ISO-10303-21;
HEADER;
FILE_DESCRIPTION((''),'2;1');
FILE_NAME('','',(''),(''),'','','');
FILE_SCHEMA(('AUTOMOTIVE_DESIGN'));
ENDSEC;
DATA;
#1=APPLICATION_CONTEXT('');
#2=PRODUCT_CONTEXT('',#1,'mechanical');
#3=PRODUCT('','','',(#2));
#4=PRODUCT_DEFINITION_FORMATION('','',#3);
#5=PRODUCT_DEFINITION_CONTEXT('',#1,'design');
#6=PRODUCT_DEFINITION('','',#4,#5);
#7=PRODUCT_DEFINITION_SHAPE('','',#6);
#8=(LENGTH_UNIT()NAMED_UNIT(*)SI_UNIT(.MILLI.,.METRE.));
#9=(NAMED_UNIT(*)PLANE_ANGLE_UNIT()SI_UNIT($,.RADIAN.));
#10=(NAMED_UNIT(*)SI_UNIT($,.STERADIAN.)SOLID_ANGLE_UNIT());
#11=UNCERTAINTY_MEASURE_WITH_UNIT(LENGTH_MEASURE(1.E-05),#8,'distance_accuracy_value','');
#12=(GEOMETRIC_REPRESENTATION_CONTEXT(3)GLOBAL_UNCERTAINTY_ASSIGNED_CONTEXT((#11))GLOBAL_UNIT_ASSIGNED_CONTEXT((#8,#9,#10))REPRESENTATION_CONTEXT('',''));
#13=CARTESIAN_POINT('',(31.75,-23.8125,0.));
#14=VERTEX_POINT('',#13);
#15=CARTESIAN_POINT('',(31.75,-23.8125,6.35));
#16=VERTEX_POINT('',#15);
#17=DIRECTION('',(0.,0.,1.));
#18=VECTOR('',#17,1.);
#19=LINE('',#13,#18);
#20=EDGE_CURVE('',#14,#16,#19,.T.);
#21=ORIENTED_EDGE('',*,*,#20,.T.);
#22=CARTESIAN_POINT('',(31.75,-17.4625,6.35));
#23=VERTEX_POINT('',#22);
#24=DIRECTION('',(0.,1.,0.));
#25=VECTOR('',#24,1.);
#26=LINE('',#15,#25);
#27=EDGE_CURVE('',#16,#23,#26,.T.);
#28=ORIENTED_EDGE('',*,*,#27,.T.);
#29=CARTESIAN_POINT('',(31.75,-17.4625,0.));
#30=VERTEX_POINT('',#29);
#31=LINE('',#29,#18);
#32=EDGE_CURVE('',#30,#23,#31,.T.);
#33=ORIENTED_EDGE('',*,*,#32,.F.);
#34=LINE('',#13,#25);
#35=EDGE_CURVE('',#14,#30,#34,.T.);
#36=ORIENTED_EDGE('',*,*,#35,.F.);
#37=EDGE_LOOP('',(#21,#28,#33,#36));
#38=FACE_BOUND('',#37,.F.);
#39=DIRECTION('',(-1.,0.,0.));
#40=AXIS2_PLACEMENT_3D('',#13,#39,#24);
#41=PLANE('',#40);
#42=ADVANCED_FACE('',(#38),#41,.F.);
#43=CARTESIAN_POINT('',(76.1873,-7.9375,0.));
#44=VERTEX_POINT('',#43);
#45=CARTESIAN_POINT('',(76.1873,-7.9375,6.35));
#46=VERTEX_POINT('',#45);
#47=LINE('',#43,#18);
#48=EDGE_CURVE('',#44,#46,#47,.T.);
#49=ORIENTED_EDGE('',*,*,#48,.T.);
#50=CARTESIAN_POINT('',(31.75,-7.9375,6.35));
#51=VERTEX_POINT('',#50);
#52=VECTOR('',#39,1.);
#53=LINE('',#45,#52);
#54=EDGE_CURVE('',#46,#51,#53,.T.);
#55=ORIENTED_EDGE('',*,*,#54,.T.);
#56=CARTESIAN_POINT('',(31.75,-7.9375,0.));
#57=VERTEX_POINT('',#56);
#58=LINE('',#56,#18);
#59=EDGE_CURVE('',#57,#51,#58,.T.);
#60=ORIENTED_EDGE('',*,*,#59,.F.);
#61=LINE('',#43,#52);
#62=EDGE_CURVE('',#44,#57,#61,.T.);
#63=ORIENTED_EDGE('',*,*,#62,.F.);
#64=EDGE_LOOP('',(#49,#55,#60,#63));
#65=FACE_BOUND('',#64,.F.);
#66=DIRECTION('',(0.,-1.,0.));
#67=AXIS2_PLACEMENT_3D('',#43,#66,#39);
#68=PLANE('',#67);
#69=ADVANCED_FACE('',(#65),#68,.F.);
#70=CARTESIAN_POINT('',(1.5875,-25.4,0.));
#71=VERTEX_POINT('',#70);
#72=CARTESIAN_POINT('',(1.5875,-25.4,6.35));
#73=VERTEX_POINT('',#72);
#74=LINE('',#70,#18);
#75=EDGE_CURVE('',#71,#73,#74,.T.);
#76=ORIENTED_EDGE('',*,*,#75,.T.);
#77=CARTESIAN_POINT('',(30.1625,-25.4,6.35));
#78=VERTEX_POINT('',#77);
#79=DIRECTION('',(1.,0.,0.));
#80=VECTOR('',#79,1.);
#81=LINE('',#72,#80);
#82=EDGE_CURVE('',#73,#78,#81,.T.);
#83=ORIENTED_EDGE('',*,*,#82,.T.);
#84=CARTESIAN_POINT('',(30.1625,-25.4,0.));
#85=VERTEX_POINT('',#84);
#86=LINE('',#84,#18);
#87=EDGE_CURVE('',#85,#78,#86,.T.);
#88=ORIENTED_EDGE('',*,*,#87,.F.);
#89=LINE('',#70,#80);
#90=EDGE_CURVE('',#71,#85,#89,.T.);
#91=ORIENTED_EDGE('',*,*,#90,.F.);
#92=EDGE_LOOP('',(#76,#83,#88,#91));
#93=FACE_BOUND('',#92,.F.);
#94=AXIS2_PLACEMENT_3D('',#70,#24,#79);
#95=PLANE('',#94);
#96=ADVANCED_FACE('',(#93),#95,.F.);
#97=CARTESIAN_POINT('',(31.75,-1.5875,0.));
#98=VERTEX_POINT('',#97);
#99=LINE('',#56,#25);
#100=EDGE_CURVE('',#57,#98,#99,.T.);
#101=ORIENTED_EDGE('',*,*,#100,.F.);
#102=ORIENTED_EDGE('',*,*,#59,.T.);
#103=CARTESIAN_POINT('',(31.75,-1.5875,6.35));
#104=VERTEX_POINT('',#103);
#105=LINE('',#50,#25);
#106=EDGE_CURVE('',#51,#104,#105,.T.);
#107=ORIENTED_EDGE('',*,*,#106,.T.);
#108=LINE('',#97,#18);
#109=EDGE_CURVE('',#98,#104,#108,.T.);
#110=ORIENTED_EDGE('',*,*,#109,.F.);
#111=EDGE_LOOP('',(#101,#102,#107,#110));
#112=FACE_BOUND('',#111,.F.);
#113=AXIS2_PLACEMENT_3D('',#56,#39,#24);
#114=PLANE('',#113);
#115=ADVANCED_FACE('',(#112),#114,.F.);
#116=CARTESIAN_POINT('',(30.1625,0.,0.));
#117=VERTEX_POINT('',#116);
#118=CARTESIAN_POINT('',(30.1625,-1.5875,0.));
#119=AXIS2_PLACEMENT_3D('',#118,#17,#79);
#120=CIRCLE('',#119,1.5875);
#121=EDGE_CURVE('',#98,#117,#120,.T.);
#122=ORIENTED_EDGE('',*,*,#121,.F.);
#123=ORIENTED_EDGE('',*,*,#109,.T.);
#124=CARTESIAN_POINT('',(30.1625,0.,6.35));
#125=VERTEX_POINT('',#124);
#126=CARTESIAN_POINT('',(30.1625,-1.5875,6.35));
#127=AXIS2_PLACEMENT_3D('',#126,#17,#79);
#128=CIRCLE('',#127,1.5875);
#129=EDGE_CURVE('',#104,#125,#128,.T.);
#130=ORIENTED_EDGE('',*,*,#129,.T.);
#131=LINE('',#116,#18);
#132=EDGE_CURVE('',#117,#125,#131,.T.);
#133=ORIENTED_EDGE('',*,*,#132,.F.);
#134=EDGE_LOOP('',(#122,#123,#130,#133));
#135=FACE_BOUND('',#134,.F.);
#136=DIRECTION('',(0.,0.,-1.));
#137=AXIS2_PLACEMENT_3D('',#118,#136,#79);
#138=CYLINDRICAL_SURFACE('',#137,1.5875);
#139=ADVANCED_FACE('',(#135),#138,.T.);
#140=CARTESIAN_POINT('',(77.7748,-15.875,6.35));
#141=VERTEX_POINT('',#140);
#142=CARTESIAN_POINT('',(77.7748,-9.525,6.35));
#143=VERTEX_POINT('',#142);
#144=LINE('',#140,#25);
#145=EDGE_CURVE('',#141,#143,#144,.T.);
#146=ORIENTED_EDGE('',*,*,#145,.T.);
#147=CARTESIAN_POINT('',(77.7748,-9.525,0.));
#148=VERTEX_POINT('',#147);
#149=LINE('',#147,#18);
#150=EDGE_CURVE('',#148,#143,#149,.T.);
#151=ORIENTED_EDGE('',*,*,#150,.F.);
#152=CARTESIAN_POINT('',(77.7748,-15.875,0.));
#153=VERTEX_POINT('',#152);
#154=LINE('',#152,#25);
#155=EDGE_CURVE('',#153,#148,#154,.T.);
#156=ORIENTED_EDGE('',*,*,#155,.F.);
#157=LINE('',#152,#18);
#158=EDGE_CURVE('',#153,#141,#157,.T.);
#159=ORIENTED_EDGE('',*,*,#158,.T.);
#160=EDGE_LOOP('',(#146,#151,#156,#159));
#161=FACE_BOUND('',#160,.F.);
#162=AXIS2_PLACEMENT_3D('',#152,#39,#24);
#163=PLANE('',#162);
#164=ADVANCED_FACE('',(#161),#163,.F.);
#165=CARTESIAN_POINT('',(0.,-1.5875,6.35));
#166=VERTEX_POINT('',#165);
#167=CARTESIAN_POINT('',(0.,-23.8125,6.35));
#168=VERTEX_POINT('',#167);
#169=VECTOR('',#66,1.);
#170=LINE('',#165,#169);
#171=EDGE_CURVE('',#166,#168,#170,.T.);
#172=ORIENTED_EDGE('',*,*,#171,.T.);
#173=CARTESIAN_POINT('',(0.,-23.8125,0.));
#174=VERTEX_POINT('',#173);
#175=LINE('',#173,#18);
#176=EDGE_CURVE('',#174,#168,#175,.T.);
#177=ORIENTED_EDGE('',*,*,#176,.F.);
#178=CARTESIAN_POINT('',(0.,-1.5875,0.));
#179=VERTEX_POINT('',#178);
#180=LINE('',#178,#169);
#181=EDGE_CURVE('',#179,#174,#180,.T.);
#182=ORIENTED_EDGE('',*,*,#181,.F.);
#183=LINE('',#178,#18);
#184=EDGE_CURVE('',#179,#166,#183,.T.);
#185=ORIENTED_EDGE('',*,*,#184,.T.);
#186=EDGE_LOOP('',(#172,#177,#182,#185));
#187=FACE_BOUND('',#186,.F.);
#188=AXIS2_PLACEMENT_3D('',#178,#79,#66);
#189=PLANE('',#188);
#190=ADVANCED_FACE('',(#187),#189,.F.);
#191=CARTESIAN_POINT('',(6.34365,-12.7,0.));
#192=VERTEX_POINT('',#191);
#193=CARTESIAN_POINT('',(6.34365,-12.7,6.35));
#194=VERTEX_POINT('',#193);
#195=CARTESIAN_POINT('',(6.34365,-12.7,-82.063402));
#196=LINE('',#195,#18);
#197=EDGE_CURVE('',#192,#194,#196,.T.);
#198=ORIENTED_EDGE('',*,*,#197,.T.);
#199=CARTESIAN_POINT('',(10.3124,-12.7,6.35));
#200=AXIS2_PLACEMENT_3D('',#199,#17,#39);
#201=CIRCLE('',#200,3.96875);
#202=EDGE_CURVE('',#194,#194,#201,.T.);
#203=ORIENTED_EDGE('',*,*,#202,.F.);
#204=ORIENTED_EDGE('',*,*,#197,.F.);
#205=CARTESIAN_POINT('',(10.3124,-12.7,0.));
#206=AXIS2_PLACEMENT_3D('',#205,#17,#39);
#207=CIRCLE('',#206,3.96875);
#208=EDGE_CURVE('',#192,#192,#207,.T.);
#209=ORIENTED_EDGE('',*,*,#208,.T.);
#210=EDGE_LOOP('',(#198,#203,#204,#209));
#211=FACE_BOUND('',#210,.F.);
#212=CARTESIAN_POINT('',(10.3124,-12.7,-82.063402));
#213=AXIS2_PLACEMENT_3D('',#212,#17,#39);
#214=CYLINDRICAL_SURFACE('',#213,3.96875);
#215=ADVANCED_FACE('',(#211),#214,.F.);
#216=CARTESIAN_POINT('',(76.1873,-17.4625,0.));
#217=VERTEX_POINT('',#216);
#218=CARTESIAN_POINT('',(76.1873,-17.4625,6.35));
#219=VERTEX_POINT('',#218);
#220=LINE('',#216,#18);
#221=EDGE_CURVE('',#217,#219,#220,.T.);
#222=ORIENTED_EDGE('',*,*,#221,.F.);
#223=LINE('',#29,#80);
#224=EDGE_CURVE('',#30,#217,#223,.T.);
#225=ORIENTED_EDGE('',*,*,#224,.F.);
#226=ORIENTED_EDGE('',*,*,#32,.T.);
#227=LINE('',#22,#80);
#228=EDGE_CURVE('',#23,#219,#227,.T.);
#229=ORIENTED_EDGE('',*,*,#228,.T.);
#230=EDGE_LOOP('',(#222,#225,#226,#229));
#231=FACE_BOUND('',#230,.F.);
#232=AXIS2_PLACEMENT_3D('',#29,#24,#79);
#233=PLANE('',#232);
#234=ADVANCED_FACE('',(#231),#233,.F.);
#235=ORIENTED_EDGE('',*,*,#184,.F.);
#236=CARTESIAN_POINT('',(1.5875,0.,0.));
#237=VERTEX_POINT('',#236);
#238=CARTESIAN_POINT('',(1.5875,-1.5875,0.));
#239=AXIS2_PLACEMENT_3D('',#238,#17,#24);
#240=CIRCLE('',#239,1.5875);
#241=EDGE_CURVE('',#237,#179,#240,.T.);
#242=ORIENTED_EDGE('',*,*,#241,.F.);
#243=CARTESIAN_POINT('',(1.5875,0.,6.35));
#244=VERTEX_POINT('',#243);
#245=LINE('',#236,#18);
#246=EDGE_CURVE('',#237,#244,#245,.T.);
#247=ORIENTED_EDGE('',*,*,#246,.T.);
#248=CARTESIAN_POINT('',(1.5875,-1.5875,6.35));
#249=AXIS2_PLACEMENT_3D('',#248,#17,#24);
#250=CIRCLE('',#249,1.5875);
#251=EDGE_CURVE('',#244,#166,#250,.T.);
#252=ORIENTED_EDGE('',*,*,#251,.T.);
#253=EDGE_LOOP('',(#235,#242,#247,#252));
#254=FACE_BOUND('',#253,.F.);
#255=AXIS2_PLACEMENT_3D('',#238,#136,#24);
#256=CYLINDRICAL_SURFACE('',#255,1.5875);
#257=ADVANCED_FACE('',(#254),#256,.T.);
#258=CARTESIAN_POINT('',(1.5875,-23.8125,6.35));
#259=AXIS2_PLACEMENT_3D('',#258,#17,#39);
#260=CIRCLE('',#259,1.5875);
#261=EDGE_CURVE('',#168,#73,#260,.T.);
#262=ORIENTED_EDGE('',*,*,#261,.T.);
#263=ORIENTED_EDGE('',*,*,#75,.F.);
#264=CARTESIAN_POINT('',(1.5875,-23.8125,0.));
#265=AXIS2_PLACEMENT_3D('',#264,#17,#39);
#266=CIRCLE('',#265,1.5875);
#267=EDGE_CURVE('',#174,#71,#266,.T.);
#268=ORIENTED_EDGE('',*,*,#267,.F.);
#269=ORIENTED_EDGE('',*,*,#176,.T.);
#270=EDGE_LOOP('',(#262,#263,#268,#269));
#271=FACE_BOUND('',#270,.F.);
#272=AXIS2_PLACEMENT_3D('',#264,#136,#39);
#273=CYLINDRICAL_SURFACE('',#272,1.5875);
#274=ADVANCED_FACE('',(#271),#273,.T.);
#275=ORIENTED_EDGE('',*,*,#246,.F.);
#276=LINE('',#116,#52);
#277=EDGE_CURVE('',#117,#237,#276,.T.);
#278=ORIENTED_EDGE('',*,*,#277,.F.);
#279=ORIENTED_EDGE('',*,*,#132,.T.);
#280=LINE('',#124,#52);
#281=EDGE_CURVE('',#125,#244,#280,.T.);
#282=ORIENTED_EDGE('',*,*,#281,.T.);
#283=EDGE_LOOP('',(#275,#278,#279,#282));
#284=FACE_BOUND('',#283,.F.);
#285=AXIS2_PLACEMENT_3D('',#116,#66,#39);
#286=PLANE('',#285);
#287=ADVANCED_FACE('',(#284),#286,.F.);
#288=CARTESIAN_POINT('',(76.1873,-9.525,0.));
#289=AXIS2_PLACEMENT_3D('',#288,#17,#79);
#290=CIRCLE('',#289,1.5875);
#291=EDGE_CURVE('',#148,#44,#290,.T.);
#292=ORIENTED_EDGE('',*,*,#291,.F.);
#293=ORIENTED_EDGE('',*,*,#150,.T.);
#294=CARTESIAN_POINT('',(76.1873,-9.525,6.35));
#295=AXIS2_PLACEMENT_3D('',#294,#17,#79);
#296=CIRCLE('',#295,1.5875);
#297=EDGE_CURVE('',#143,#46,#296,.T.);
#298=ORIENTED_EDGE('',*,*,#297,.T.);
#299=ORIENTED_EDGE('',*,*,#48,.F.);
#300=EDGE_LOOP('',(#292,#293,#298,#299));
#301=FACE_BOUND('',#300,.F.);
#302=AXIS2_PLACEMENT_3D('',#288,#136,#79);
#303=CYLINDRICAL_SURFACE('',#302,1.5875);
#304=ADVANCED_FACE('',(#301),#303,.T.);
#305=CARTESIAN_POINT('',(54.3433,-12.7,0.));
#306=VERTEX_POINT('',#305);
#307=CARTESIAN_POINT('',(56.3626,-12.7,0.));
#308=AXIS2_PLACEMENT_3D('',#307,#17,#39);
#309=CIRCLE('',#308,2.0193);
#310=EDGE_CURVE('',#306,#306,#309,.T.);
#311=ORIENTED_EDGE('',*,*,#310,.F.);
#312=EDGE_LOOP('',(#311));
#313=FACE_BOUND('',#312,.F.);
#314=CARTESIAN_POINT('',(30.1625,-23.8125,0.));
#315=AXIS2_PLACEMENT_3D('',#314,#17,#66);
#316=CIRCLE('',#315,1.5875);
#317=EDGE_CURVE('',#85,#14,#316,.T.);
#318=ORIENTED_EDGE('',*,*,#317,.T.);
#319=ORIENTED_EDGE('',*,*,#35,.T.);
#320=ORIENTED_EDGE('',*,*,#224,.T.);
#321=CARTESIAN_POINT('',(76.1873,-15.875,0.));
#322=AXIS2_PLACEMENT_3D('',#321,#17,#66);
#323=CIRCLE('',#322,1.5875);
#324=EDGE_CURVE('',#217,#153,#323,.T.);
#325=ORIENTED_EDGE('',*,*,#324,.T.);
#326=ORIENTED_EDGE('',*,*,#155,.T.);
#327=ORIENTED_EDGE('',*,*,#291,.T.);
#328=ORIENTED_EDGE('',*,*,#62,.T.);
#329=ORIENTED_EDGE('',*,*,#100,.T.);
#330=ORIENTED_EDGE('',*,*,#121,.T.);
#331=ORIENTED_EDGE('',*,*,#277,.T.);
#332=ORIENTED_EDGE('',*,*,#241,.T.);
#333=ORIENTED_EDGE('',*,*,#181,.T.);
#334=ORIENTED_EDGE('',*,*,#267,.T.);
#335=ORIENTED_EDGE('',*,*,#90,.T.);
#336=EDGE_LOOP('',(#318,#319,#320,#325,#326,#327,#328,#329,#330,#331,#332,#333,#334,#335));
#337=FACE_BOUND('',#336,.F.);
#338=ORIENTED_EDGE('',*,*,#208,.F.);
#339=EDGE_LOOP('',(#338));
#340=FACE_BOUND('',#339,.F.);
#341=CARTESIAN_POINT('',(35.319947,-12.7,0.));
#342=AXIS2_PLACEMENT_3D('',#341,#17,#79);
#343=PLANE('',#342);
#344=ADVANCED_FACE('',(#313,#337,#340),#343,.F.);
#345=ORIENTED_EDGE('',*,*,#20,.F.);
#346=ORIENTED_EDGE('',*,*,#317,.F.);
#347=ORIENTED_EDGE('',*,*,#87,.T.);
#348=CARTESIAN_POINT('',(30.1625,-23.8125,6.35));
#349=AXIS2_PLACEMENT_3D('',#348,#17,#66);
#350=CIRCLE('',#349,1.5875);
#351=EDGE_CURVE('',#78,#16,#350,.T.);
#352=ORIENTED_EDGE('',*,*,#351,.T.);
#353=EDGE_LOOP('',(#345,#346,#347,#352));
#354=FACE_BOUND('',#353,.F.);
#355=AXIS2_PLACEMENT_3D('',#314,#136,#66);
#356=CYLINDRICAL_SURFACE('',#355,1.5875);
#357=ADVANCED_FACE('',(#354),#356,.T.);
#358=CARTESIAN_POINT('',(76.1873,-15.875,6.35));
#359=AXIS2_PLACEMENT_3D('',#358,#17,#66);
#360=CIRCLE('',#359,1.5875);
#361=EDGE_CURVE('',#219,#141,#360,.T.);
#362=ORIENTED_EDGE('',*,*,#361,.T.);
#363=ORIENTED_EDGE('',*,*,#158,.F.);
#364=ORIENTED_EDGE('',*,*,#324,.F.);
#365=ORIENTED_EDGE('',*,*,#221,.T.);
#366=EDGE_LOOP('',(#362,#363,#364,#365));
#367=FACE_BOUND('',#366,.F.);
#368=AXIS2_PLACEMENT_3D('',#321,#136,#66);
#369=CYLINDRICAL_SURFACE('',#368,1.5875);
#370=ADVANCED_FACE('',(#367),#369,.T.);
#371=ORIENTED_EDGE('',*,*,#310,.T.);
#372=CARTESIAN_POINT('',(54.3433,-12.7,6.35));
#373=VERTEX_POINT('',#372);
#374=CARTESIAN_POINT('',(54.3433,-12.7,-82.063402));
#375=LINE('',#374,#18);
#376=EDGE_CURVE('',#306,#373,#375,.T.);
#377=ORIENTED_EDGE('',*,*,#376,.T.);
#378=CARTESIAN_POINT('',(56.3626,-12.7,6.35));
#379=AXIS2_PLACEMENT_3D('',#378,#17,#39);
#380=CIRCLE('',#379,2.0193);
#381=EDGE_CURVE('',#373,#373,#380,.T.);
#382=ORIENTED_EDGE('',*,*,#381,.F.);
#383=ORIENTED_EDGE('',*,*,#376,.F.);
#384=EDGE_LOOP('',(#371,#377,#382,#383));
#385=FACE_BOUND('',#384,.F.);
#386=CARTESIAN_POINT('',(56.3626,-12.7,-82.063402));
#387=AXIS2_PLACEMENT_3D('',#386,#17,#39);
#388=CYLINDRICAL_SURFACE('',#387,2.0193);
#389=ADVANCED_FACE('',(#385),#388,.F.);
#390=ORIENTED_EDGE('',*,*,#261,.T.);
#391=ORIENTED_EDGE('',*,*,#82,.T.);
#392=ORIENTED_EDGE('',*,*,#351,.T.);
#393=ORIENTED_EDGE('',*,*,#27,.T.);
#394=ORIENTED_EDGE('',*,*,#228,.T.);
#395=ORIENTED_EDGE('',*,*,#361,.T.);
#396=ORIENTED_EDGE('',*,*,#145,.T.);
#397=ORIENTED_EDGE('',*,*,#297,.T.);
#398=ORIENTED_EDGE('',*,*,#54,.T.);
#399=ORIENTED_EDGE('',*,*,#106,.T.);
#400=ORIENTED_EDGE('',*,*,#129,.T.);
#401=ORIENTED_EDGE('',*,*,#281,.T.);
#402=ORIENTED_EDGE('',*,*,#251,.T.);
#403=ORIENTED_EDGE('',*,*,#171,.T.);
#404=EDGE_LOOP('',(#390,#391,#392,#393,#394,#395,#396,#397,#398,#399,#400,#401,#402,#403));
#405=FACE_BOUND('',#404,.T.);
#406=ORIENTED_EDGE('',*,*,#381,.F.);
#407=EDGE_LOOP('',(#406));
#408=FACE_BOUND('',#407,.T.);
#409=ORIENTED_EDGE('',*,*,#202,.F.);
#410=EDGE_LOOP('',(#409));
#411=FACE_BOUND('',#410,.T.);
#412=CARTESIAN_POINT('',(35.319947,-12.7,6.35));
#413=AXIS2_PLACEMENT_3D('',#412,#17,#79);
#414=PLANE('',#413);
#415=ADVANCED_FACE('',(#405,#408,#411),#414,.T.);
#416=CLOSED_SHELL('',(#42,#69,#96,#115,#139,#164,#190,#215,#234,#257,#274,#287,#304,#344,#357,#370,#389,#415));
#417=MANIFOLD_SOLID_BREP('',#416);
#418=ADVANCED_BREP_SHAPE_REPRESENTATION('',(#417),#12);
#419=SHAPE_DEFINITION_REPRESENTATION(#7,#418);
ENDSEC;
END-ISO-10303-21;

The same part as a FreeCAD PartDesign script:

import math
import FreeCAD as App
import Part
import Sketcher
Q = App.Units.Quantity

doc = App.newDocument("Part")
body = doc.addObject("PartDesign::Body", "Body")

# Sketch on XY plane
sketch1 = doc.addObject("Sketcher::SketchObject", "Sketch")
body.addObject(sketch1)
sketch1.AttachmentSupport = (doc.XY_Plane, [""])
sketch1.MapMode = "FlatFace"
sketch1.addGeometry(Part.LineSegment(App.Vector(30.2, 0, 0), App.Vector(1.6, 0, 0)), False)
sketch1.addGeometry(Part.ArcOfCircle(Part.Circle(App.Vector(1.6, -1.6, 0), App.Vector(0, 0, 1), 1.6), math.radians(90), math.radians(180)), False)
sketch1.addGeometry(Part.LineSegment(App.Vector(0, -1.6, 0), App.Vector(0, -23.8, 0)), False)
sketch1.addGeometry(Part.ArcOfCircle(Part.Circle(App.Vector(1.6, -23.8, 0), App.Vector(0, 0, 1), 1.6), math.radians(180), math.radians(270)), False)
sketch1.addGeometry(Part.LineSegment(App.Vector(1.6, -25.4, 0), App.Vector(30.2, -25.4, 0)), False)
sketch1.addGeometry(Part.ArcOfCircle(Part.Circle(App.Vector(30.2, -23.8, 0), App.Vector(0, 0, 1), 1.6), math.radians(-90), math.radians(0)), False)
sketch1.addGeometry(Part.LineSegment(App.Vector(31.8, -23.8, 0), App.Vector(31.8, -17.5, 0)), False)
sketch1.addGeometry(Part.LineSegment(App.Vector(31.8, -17.5, 0), App.Vector(76.2, -17.5, 0)), False)
sketch1.addGeometry(Part.ArcOfCircle(Part.Circle(App.Vector(76.2, -15.9, 0), App.Vector(0, 0, 1), 1.6), math.radians(-90), math.radians(0)), False)
sketch1.addGeometry(Part.LineSegment(App.Vector(77.8, -15.9, 0), App.Vector(77.8, -9.5, 0)), False)
sketch1.addGeometry(Part.ArcOfCircle(Part.Circle(App.Vector(76.2, -9.5, 0), App.Vector(0, 0, 1), 1.6), math.radians(0), math.radians(90)), False)
sketch1.addGeometry(Part.LineSegment(App.Vector(76.2, -7.9, 0), App.Vector(31.8, -7.9, 0)), False)
sketch1.addGeometry(Part.LineSegment(App.Vector(31.8, -7.9, 0), App.Vector(31.8, -1.6, 0)), False)
sketch1.addGeometry(Part.ArcOfCircle(Part.Circle(App.Vector(30.2, -1.6, 0), App.Vector(0, 0, 1), 1.6), math.radians(0), math.radians(90)), False)
sketch1.addConstraint(Sketcher.Constraint("Tangent", 0, 2, 1, 1))
sketch1.addConstraint(Sketcher.Constraint("Tangent", 1, 2, 2, 1))
sketch1.addConstraint(Sketcher.Constraint("Tangent", 2, 2, 3, 1))
sketch1.addConstraint(Sketcher.Constraint("Tangent", 3, 2, 4, 1))
sketch1.addConstraint(Sketcher.Constraint("Tangent", 4, 2, 5, 1))
sketch1.addConstraint(Sketcher.Constraint("Tangent", 5, 2, 6, 1))
sketch1.addConstraint(Sketcher.Constraint("Coincident", 6, 2, 7, 1))
sketch1.addConstraint(Sketcher.Constraint("Tangent", 7, 2, 8, 1))
sketch1.addConstraint(Sketcher.Constraint("Tangent", 8, 2, 9, 1))
sketch1.addConstraint(Sketcher.Constraint("Tangent", 9, 2, 10, 1))
sketch1.addConstraint(Sketcher.Constraint("Tangent", 10, 2, 11, 1))
sketch1.addConstraint(Sketcher.Constraint("Coincident", 11, 2, 12, 1))
sketch1.addConstraint(Sketcher.Constraint("Tangent", 12, 2, 13, 1))
sketch1.addConstraint(Sketcher.Constraint("Tangent", 13, 2, 0, 1))
sketch1.addConstraint(Sketcher.Constraint("Horizontal", 0))
sketch1.addConstraint(Sketcher.Constraint("Vertical", 2))
sketch1.addConstraint(Sketcher.Constraint("Horizontal", 4))
sketch1.addConstraint(Sketcher.Constraint("Vertical", 6))
sketch1.addConstraint(Sketcher.Constraint("Horizontal", 7))
sketch1.addConstraint(Sketcher.Constraint("Vertical", 9))
sketch1.addConstraint(Sketcher.Constraint("Horizontal", 11))
sketch1.addConstraint(Sketcher.Constraint("Vertical", 12))
sketch1.addConstraint(Sketcher.Constraint("Equal", 1, 3))
sketch1.addConstraint(Sketcher.Constraint("Equal", 3, 5))
sketch1.addConstraint(Sketcher.Constraint("Equal", 5, 8))
sketch1.addConstraint(Sketcher.Constraint("Equal", 8, 10))
sketch1.addConstraint(Sketcher.Constraint("Equal", 10, 13))
sketch1.addConstraint(Sketcher.Constraint("PointOnObject", 0, 2, -1))
sketch1.addConstraint(Sketcher.Constraint("PointOnObject", 1, 2, -2))
sketch1.addConstraint(Sketcher.Constraint("Vertical", 5, 3, 13, 3))
sketch1.addConstraint(Sketcher.Constraint("Equal", 6, 9))
sketch1.addConstraint(Sketcher.Constraint("Equal", 9, 12))
sketch1.addConstraint(Sketcher.Constraint("DistanceY", 3, 2, -1, 1, Q("1 in")))
sketch1.addConstraint(Sketcher.Constraint("Radius", 1, Q("0.0625 in")))
sketch1.addConstraint(Sketcher.Constraint("DistanceX", 0, 2, 0, 1, Q("1.125 in")))
sketch1.addConstraint(Sketcher.Constraint("DistanceX", 7, 1, 7, 2, Q("1.7495 in")))
pad1 = doc.addObject("PartDesign::Pad", "Pad")
body.addObject(pad1)
pad1.Profile = sketch1
pad1.Length = Q("0.25 in")

# Sketch on XY plane
sketch2 = doc.addObject("Sketcher::SketchObject", "Sketch001")
body.addObject(sketch2)
sketch2.AttachmentSupport = (doc.XY_Plane, [""])
sketch2.MapMode = "FlatFace"
sketch2.addGeometry(Part.Circle(App.Vector(10.3, -12.7, 0), App.Vector(0, 0, 1), 4), False)
sketch2.addConstraint(Sketcher.Constraint("Diameter", 0, Q("0.3125 in")))
sketch2.addConstraint(Sketcher.Constraint("DistanceY", 0, 3, -1, 1, Q("0.5 in")))
sketch2.addConstraint(Sketcher.Constraint("DistanceX", -1, 1, 0, 3, Q("0.406 in")))
doc.recompute()
hole = doc.addObject("PartDesign::Hole", "Hole")
body.addObject(hole)
hole.Profile = sketch2
hole.ThreadType = "None"
hole.Diameter = Q("0.3125 in")
hole.DepthType = "ThroughAll"
hole.Reversed = True

# Sketch on XY plane
sketch3 = doc.addObject("Sketcher::SketchObject", "Sketch002")
body.addObject(sketch3)
sketch3.AttachmentSupport = (doc.XY_Plane, [""])
sketch3.MapMode = "FlatFace"
sketch3.addGeometry(Part.Circle(App.Vector(56.4, -12.7, 0), App.Vector(0, 0, 1), 2), False)
sketch3.addConstraint(Sketcher.Constraint("Diameter", 0, Q("0.159 in")))
sketch3.addConstraint(Sketcher.Constraint("DistanceY", 0, 3, -1, 1, Q("0.5 in")))
sketch3.addConstraint(Sketcher.Constraint("DistanceX", -1, 1, 0, 3, Q("2.219 in")))
doc.recompute()
hole2 = doc.addObject("PartDesign::Hole", "Hole001")
body.addObject(hole2)
hole2.Profile = sketch3
hole2.ThreadType = "None"
hole2.Diameter = Q("0.159 in")
hole2.DepthType = "ThroughAll"
hole2.Reversed = True

doc.recompute()
